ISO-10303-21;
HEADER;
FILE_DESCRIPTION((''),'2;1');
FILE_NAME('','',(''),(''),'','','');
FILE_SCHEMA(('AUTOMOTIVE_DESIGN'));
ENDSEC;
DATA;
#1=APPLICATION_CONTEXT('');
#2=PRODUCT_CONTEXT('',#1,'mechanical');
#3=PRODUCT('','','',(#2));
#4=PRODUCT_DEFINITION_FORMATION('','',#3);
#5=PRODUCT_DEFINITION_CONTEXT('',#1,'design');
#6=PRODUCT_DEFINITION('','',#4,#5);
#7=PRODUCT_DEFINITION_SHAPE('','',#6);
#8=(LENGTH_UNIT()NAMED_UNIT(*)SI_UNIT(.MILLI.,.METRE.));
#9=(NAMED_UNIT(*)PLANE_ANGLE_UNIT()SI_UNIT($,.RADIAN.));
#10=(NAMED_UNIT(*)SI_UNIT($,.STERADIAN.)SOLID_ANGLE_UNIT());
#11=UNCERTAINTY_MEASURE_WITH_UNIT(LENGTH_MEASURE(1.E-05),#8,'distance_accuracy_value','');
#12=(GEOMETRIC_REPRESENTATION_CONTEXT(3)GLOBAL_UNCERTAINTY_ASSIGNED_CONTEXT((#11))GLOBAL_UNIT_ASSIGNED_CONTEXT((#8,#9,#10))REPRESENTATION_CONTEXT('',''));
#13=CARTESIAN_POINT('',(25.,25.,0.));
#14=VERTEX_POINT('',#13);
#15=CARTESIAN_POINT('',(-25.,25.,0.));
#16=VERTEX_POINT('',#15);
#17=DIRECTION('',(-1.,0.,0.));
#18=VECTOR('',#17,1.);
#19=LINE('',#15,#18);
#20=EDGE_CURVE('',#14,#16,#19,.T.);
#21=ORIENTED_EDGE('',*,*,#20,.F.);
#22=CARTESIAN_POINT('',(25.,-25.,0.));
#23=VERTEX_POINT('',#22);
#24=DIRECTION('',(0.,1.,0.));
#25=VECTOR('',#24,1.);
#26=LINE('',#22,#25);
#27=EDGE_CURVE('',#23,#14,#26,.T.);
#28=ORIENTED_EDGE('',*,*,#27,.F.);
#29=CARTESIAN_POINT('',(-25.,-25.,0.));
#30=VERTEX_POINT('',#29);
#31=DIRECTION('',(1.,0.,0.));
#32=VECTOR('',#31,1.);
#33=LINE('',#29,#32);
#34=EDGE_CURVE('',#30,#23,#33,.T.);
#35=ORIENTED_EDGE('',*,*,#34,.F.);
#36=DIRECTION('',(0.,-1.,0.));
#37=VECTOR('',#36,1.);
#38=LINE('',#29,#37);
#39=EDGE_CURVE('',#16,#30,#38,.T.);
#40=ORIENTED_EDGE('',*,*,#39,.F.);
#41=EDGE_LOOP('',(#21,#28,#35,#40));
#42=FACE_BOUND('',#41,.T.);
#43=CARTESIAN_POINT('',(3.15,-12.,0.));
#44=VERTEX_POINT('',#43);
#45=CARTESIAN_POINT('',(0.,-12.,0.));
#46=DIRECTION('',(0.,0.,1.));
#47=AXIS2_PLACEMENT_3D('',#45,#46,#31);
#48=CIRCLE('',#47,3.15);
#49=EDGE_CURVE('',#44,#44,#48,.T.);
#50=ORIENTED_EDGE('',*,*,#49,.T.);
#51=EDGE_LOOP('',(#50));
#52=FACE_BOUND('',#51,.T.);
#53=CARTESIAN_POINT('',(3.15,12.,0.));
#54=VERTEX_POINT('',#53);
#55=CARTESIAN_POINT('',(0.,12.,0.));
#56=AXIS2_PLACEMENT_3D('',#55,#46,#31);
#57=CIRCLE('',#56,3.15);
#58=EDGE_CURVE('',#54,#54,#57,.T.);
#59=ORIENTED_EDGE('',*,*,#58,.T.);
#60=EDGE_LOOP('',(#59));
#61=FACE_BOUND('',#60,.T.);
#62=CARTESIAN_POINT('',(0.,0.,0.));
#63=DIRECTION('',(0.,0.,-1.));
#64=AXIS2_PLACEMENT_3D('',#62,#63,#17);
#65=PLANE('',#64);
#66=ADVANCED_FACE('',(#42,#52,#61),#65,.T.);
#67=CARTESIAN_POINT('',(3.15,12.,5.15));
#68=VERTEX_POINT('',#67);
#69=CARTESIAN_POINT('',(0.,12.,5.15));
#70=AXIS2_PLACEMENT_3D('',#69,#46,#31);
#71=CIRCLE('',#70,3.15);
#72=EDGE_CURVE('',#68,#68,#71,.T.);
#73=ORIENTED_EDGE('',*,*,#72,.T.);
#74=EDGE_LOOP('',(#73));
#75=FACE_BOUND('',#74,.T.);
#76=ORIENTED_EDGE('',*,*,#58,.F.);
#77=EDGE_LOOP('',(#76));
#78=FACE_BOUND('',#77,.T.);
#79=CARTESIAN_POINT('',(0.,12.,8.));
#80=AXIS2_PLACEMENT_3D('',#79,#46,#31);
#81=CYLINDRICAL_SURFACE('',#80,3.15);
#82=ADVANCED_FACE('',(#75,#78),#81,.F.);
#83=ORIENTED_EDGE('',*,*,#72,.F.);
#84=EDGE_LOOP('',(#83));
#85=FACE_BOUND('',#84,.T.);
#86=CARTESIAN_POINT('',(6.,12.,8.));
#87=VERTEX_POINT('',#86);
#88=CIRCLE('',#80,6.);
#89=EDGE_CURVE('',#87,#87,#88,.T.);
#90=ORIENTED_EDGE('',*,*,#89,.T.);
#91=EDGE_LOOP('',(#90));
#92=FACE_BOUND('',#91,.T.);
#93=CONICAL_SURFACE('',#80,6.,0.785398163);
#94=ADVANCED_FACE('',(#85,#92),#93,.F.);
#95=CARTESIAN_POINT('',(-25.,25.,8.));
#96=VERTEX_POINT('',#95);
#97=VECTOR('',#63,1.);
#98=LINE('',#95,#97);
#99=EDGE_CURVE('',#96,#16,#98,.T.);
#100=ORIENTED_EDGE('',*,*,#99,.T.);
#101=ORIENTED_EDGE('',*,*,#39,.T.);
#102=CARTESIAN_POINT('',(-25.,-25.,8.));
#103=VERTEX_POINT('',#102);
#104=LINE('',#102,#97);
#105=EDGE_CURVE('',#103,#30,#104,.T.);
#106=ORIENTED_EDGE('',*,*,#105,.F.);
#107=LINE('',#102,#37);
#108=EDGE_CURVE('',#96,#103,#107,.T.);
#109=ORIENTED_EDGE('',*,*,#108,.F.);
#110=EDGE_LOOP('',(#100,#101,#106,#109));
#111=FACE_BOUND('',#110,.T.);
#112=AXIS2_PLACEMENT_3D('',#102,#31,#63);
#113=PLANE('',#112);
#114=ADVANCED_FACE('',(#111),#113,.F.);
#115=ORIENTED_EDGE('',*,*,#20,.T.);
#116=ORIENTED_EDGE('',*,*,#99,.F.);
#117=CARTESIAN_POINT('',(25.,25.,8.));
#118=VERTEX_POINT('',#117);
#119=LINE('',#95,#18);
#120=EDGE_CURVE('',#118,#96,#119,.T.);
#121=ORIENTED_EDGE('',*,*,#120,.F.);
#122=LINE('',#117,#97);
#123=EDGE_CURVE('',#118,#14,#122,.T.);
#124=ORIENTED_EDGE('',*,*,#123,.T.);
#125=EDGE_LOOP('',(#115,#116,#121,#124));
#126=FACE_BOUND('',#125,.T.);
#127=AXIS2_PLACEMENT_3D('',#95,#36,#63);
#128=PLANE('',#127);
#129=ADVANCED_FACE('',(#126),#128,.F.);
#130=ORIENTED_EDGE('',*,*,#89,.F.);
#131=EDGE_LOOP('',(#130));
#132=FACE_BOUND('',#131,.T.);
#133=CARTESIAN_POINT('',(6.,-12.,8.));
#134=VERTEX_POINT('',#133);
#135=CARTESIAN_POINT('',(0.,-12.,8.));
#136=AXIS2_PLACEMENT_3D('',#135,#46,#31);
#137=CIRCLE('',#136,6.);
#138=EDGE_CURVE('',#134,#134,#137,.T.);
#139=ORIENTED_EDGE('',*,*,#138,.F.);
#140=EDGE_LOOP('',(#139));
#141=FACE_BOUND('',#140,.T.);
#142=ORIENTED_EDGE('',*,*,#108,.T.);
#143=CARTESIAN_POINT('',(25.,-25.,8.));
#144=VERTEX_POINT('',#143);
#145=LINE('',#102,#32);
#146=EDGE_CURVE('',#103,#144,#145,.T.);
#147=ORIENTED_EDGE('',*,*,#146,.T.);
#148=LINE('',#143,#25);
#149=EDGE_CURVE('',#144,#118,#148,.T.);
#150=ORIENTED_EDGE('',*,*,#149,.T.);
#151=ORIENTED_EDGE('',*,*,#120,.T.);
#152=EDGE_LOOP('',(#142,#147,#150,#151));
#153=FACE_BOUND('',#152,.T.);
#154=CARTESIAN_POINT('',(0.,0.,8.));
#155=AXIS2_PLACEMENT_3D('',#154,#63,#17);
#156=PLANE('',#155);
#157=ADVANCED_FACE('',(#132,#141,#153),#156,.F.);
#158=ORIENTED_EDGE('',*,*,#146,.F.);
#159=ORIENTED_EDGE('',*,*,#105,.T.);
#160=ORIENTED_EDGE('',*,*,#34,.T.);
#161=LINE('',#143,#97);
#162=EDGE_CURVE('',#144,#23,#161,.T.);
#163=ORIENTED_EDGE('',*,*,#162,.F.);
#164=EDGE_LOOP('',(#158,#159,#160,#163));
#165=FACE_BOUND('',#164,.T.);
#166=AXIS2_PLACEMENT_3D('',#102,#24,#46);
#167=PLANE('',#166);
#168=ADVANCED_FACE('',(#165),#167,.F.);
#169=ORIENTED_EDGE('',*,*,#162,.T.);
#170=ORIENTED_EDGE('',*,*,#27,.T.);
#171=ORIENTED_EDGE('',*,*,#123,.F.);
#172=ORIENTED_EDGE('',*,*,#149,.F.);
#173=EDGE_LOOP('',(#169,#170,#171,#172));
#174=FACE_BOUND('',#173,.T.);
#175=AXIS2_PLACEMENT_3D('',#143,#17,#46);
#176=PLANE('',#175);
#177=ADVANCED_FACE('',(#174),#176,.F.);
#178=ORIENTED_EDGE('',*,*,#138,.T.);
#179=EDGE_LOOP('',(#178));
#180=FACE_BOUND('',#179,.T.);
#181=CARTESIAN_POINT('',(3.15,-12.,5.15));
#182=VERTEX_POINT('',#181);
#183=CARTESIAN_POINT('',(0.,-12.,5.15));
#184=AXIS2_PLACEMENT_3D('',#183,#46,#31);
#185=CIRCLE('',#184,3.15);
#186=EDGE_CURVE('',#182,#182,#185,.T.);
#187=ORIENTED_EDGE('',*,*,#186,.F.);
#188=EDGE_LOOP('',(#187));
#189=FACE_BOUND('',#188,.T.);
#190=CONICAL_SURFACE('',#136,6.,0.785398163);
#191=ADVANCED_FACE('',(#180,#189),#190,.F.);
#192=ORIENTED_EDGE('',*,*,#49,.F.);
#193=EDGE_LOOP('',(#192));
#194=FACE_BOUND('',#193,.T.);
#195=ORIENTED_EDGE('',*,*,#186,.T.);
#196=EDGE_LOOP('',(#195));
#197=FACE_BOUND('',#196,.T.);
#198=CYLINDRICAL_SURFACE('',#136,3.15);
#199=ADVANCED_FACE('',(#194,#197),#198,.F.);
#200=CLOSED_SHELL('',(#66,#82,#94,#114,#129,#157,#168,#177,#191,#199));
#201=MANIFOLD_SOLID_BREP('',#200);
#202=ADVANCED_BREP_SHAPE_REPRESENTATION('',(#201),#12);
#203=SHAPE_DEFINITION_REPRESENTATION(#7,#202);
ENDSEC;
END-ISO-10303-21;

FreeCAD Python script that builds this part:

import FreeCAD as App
import Part
import Sketcher
from FreeCAD import Vector

doc = App.newDocument("Part")
body = doc.addObject("PartDesign::Body", "Body")

# Sketch on XY plane
sketch1 = doc.addObject("Sketcher::SketchObject", "Sketch")
body.addObject(sketch1)
sketch1.AttachmentSupport = (doc.XY_Plane, [""])
sketch1.MapMode = "FlatFace"
sketch1.addGeometry(Part.LineSegment(Vector(-25, 25, 0), Vector(-25, -25, 0)), False)
sketch1.addGeometry(Part.LineSegment(Vector(-25, -25, 0), Vector(25, -25, 0)), False)
sketch1.addGeometry(Part.LineSegment(Vector(25, -25, 0), Vector(25, 25, 0)), False)
sketch1.addGeometry(Part.LineSegment(Vector(25, 25, 0), Vector(-25, 25, 0)), False)
sketch1.addConstraint(Sketcher.Constraint("Coincident", 0, 2, 1, 1))
sketch1.addConstraint(Sketcher.Constraint("Coincident", 1, 2, 2, 1))
sketch1.addConstraint(Sketcher.Constraint("Coincident", 2, 2, 3, 1))
sketch1.addConstraint(Sketcher.Constraint("Coincident", 3, 2, 0, 1))
sketch1.addConstraint(Sketcher.Constraint("Vertical", 0))
sketch1.addConstraint(Sketcher.Constraint("Horizontal", 1))
sketch1.addConstraint(Sketcher.Constraint("Vertical", 2))
sketch1.addConstraint(Sketcher.Constraint("Horizontal", 3))
sketch1.addConstraint(Sketcher.Constraint("Symmetric", 0, 2, 2, 2, -1, 1))
sketch1.addConstraint(Sketcher.Constraint("Equal", 3, 0))
sketch1.addConstraint(Sketcher.Constraint("DistanceX", 1, 1, 1, 2, 50.0))
pad1 = doc.addObject("PartDesign::Pad", "Pad")
body.addObject(pad1)
pad1.Profile = sketch1
pad1.Length = 8

# Sketch on XY plane
sketch2 = doc.addObject("Sketcher::SketchObject", "Sketch001")
body.addObject(sketch2)
sketch2.AttachmentSupport = (doc.XY_Plane, [""])
sketch2.MapMode = "FlatFace"
sketch2.AttachmentOffset = App.Placement(Vector(0, 0, 8), App.Rotation())
sketch2.addGeometry(Part.Circle(Vector(0, 12, 0), Vector(0, 0, 1), 3.1), False)
sketch2.addGeometry(Part.Circle(Vector(0, -12, 0), Vector(0, 0, 1), 3.1), False)
sketch2.addConstraint(Sketcher.Constraint("Equal", 0, 1))
sketch2.addConstraint(Sketcher.Constraint("Symmetric", 0, 3, 1, 3, -1, 1))
sketch2.addConstraint(Sketcher.Constraint("PointOnObject", 0, 3, -2))
sketch2.addConstraint(Sketcher.Constraint("Diameter", 0, 6.3))
sketch2.addConstraint(Sketcher.Constraint("DistanceY", -1, 1, 0, 3, 12.0))
doc.recompute()
hole = doc.addObject("PartDesign::Hole", "Hole")
body.addObject(hole)
hole.Profile = sketch2
hole.ThreadType = "None"
hole.Diameter = 6.3
hole.DepthType = "ThroughAll"
hole.HoleCutType = "Countersink"
hole.HoleCutDiameter = 12
hole.HoleCutCountersinkAngle = 90

doc.recompute()
